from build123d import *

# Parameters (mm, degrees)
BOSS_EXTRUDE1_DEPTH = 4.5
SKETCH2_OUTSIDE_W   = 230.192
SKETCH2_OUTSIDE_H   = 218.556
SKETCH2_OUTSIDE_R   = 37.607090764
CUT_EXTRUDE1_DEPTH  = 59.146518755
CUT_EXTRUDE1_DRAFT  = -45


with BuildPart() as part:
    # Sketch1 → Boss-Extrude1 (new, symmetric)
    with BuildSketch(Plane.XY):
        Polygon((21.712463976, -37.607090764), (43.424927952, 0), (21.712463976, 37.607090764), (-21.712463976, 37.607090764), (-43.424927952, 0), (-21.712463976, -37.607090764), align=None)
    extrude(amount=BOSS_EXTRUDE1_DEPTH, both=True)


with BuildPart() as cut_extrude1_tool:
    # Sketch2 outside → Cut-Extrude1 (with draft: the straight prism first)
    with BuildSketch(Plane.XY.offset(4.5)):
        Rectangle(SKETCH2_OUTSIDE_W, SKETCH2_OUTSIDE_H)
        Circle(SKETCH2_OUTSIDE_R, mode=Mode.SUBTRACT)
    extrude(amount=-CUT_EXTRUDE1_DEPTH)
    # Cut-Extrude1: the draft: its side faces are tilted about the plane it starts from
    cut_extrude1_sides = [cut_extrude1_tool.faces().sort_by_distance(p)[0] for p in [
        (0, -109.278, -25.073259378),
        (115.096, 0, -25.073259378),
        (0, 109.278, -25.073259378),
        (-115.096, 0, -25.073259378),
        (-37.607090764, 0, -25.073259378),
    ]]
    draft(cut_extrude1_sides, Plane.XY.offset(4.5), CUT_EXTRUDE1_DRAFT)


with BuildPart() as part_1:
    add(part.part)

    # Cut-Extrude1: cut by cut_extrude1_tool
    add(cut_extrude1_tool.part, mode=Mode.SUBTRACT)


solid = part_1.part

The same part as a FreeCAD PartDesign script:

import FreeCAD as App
import Part
import Sketcher
from FreeCAD import Vector
Q = App.Units.Quantity


def faces_at(feature, points):
    """Names of the faces that lie closest to the given points."""
    faces = feature.Shape.Faces
    near = lambda p: min(range(len(faces)), key=lambda i: faces[i].distToShape(Part.Vertex(*p))[0])
    return sorted({f"Face{near(p) + 1}" for p in points})


def add_polygon(sketch, points):
    """Adds a closed chain of lines whose ends are joined by coincident constraints."""
    first, n = sketch.GeometryCount, len(points)
    for a, b in zip(points, points[1:] + points[:1]):
        sketch.addGeometry(Part.LineSegment(App.Vector(*a, 0), App.Vector(*b, 0)), False)
    for i in range(n):
        sketch.addConstraint(Sketcher.Constraint("Coincident", first + i, 2, first + (i + 1) % n, 1))

doc = App.newDocument("Part")
body = doc.addObject("PartDesign::Body", "Body")

sketch1 = body.newObject("Sketcher::SketchObject", "Sketch")
sketch1.AttachmentSupport = (doc.getObject("XY_Plane"), [""])
sketch1.MapMode = "FlatFace"
add_polygon(sketch1, [(22, -38), (43, 0), (22, 38), (-22, 38), (-43, 0), (-22, -38)])
sketch1.addConstraint([
    Sketcher.Constraint("Horizontal", 2),
    Sketcher.Constraint("Horizontal", 5),
    Sketcher.Constraint("Symmetric", 0, 2, 3, 2, -1, 1),
    Sketcher.Constraint("Symmetric", 1, 2, 4, 2, -1, 1),
    Sketcher.Constraint("PointOnObject", 0, 2, -1),
    Sketcher.Constraint("Parallel", 0, 3),
    Sketcher.Constraint("Vertical", 2, 2, 4, 2),
    Sketcher.Constraint("Angle", 0, Q("60 deg")),
    Sketcher.Constraint("DistanceX", 2, 2, 2, 1, 43.424928),
    Sketcher.Constraint("DistanceY", -1, 1, 1, 2, 37.607091),
])
pad1 = body.newObject("PartDesign::Pad", "Pad")
pad1.Profile = sketch1
pad1.Length = 9
pad1.Midplane = True
body2 = doc.addObject("PartDesign::Body", "Body001")

sketch2 = body2.newObject("Sketcher::SketchObject", "Sketch001")
sketch2.AttachmentSupport = (doc.getObject("XY_Plane001"), [""])
sketch2.MapMode = "FlatFace"
sketch2.AttachmentOffset = App.Placement(Vector(0, 0, 4.5), App.Rotation())
add_polygon(sketch2, [(-115, 109), (-115, -109), (115, -109), (115, 109)])
sketch2.addGeometry(Part.Circle(Vector(0, 0, 0), Vector(0, 0, 1), 38), False)
sketch2.addConstraint([
    Sketcher.Constraint("Vertical", 0),
    Sketcher.Constraint("Horizontal", 1),
    Sketcher.Constraint("Vertical", 2),
    Sketcher.Constraint("Horizontal", 3),
    Sketcher.Constraint("Coincident", 4, 3, -1, 1),
    Sketcher.Constraint("Symmetric", 0, 2, 2, 2, -1, 1),
    Sketcher.Constraint("Diameter", 4, 75.214182),
    Sketcher.Constraint("DistanceX", 1, 1, 1, 2, 230.192),
    Sketcher.Constraint("DistanceY", 0, 2, 0, 1, 218.556),
])
pad2 = body2.newObject("PartDesign::Pad", "Pad001")
pad2.Profile = sketch2
pad2.Length = 59.146519
pad2.Reversed = True
doc.recompute()

datumplane = body2.newObject("PartDesign::Plane", "DatumPlane")
datumplane.AttachmentSupport = (doc.getObject("XY_Plane001"), [""])
datumplane.MapMode = "FlatFace"
datumplane.AttachmentOffset = App.Placement(Vector(0, 0, 4.5), App.Rotation())
draft = body2.newObject("PartDesign::Draft", "Draft")
draft.Base = (pad2, faces_at(pad2, [
    (0, -109.278, -25.073),
    (115.096, 0, -25.073),
    (0, 109.278, -25.073),
    (-115.096, 0, -25.073),
    (-37.607, 0, -25.073),
]))
draft.NeutralPlane = (datumplane, [""])
draft.Angle = 45
draft.Reversed = True
doc.recompute()

boolean = body.newObject("PartDesign::Boolean", "Boolean")
boolean.Type = "Cut"
boolean.addObjects([body2])

doc.recompute()
